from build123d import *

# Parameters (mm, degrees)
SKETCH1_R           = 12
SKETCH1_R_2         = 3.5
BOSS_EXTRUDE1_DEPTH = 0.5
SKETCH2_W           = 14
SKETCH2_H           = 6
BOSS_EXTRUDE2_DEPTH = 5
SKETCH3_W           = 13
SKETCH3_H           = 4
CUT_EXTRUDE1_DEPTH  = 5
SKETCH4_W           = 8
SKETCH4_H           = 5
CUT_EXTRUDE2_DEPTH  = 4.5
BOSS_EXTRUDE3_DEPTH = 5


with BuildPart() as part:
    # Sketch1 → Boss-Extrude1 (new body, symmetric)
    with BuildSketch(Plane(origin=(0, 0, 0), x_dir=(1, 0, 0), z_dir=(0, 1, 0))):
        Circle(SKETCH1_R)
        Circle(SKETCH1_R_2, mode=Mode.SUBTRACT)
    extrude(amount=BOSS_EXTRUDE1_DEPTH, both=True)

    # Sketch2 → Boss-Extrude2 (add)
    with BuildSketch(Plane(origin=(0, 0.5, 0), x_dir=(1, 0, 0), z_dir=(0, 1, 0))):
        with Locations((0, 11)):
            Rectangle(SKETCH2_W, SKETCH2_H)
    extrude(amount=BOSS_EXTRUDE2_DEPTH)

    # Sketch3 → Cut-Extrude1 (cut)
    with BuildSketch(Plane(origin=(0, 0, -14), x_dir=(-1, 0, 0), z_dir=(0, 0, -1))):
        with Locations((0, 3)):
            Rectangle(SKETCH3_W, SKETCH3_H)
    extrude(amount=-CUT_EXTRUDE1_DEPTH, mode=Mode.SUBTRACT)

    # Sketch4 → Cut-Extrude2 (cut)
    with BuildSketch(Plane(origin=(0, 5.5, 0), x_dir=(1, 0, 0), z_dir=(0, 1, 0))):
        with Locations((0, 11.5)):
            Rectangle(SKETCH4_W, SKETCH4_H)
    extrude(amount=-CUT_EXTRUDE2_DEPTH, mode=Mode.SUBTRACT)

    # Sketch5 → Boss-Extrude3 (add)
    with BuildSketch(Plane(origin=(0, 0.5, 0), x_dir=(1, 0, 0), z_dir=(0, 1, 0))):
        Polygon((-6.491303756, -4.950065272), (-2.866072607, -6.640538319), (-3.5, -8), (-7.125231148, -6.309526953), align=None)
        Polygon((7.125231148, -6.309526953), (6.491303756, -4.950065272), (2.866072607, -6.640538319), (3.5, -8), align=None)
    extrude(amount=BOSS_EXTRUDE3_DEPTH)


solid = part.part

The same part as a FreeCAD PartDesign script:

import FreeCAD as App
import Part
import Sketcher
Q = App.Units.Quantity


def add_polygon(sketch, points):
    """Adds a closed chain of lines whose ends are joined by coincident constraints."""
    first, n = sketch.GeometryCount, len(points)
    for a, b in zip(points, points[1:] + points[:1]):
        sketch.addGeometry(Part.LineSegment(App.Vector(*a, 0), App.Vector(*b, 0)), False)
    for i in range(n):
        sketch.addConstraint(Sketcher.Constraint("Coincident", first + i, 2, first + (i + 1) % n, 1))

doc = App.newDocument("Part")
params = doc.addObject("Spreadsheet::Sheet", "Params")
for row, (alias, value) in enumerate([
    ("sketch1_diameter", "24 mm"),
    ("sketch1_diameter2", "7 mm"),
    ("pad1_length", "1 mm"),
    ("sketch2_width", "14 mm"),
    ("sketch2_height", "6 mm"),
    ("pad2_length", "5 mm"),
    ("sketch3_width", "13 mm"),
    ("sketch3_height", "4 mm"),
    ("pocket1_length", "5 mm"),
    ("sketch4_width", "8 mm"),
    ("sketch4_height", "5 mm"),
    ("pocket2_length", "4.5 mm"),
    ("sketch5_length", "4 mm"),
    ("sketch5_length2", "1.5 mm"),
    ("pad3_length", "5 mm"),
], start=1):
    params.set(f"A{row}", alias)
    params.set(f"B{row}", "=" + value)
    params.setAlias(f"B{row}", alias)

body = doc.addObject("PartDesign::Body", "Body")

sketch1 = doc.addObject("Sketcher::SketchObject", "Sketch")
body.addObject(sketch1)
sketch1.AttachmentSupport = (doc.XZ_Plane, [""])
sketch1.MapMode = "FlatFace"
sketch1.addGeometry([
    Part.Circle(App.Vector(0, 0, 0), App.Vector(0, 0, 1), 12),
    Part.Circle(App.Vector(0, 0, 0), App.Vector(0, 0, 1), 3.5),
], False)
sketch1.addConstraint([
    Sketcher.Constraint("Coincident", 0, 3, -1, 1),
    Sketcher.Constraint("Coincident", 1, 3, -1, 1),
    Sketcher.Constraint("Diameter", 0, 24.0),
    Sketcher.Constraint("Diameter", 1, 7.0),
])
sketch1.setExpression("Constraints[2]", "Params.sketch1_diameter")
sketch1.setExpression("Constraints[3]", "Params.sketch1_diameter2")
pad1 = doc.addObject("PartDesign::Pad", "Pad")
body.addObject(pad1)
pad1.Profile = sketch1
pad1.setExpression("Length", "Params.pad1_length")
pad1.Midplane = True

sketch2 = doc.addObject("Sketcher::SketchObject", "Sketch001")
body.addObject(sketch2)
sketch2.AttachmentSupport = (doc.XZ_Plane, [""])
sketch2.MapMode = "FlatFace"
sketch2.AttachmentOffset = App.Placement(App.Vector(0, 0, -0.5), App.Rotation())
add_polygon(sketch2, [(-7, -14), (-7, -8), (7, -8), (7, -14)])
sketch2.addConstraint([
    Sketcher.Constraint("Vertical", 0),
    Sketcher.Constraint("Horizontal", 1),
    Sketcher.Constraint("Vertical", 2),
    Sketcher.Constraint("Horizontal", 3),
    Sketcher.Constraint("DistanceX", 1, 1, 1, 2, 14.0),
    Sketcher.Constraint("DistanceY", 0, 1, 0, 2, 6.0),
    Sketcher.Constraint("DistanceX", 0, 2, -1, 1, 7.0),
    Sketcher.Constraint("DistanceY", 0, 2, -1, 1, 8.0),
])
sketch2.setExpression("Constraints[8]", "Params.sketch2_width")
sketch2.setExpression("Constraints[9]", "Params.sketch2_height")
pad2 = doc.addObject("PartDesign::Pad", "Pad001")
body.addObject(pad2)
pad2.Profile = sketch2
pad2.setExpression("Length", "Params.pad2_length")
pad2.Reversed = True

sketch3 = doc.addObject("Sketcher::SketchObject", "Sketch002")
body.addObject(sketch3)
sketch3.AttachmentSupport = (doc.XY_Plane, [""])
sketch3.MapMode = "FlatFace"
sketch3.AttachmentOffset = App.Placement(App.Vector(0, 0, -14), App.Rotation())
add_polygon(sketch3, [(6.5, 5), (6.5, 1), (-6.5, 1), (-6.5, 5)])
sketch3.addConstraint([
    Sketcher.Constraint("Vertical", 0),
    Sketcher.Constraint("Horizontal", 1),
    Sketcher.Constraint("Vertical", 2),
    Sketcher.Constraint("Horizontal", 3),
    Sketcher.Constraint("DistanceX", 1, 2, 1, 1, 13.0),
    Sketcher.Constraint("DistanceY", 0, 2, 0, 1, 4.0),
    Sketcher.Constraint("DistanceY", -1, 1, 0, 2, 1.0),
    Sketcher.Constraint("DistanceX", -1, 1, 0, 2, 6.5),
])
sketch3.setExpression("Constraints[8]", "Params.sketch3_width")
sketch3.setExpression("Constraints[9]", "Params.sketch3_height")
pocket1 = doc.addObject("PartDesign::Pocket", "Pocket")
body.addObject(pocket1)
pocket1.Profile = sketch3
pocket1.setExpression("Length", "Params.pocket1_length")
pocket1.Reversed = True

sketch4 = doc.addObject("Sketcher::SketchObject", "Sketch003")
body.addObject(sketch4)
sketch4.AttachmentSupport = (doc.XZ_Plane, [""])
sketch4.MapMode = "FlatFace"
sketch4.AttachmentOffset = App.Placement(App.Vector(0, 0, -5.5), App.Rotation())
add_polygon(sketch4, [(-4, -14), (-4, -9), (4, -9), (4, -14)])
sketch4.addConstraint([
    Sketcher.Constraint("Vertical", 0),
    Sketcher.Constraint("Horizontal", 1),
    Sketcher.Constraint("Vertical", 2),
    Sketcher.Constraint("Horizontal", 3),
    Sketcher.Constraint("DistanceX", 1, 1, 1, 2, 8.0),
    Sketcher.Constraint("DistanceY", 0, 1, 0, 2, 5.0),
    Sketcher.Constraint("DistanceX", 0, 2, -1, 1, 4.0),
    Sketcher.Constraint("DistanceY", 0, 2, -1, 1, 9.0),
])
sketch4.setExpression("Constraints[8]", "Params.sketch4_width")
sketch4.setExpression("Constraints[9]", "Params.sketch4_height")
pocket2 = doc.addObject("PartDesign::Pocket", "Pocket001")
body.addObject(pocket2)
pocket2.Profile = sketch4
pocket2.setExpression("Length", "Params.pocket2_length")
pocket2.Reversed = True

sketch5 = doc.addObject("Sketcher::SketchObject", "Sketch004")
body.addObject(sketch5)
sketch5.AttachmentSupport = (doc.XZ_Plane, [""])
sketch5.MapMode = "FlatFace"
sketch5.AttachmentOffset = App.Placement(App.Vector(0, 0, -0.5), App.Rotation())
add_polygon(sketch5, [(-2.9, 6.6), (-6.5, 5), (-7.1, 6.3), (-3.5, 8)])
add_polygon(sketch5, [(7.1, 6.3), (6.5, 5), (2.9, 6.6), (3.5, 8)])
sketch5.addConstraint([
    Sketcher.Constraint("Symmetric", 0, 2, 4, 2, -2),
    Sketcher.Constraint("Symmetric", 3, 2, 5, 2, -2),
    Sketcher.Constraint("Symmetric", 2, 2, 6, 2, -2),
    Sketcher.Constraint("Symmetric", 1, 2, 7, 2, -2),
    Sketcher.Constraint("Perpendicular", 0, 1),
    Sketcher.Constraint("Perpendicular", 1, 2),
    Sketcher.Constraint("Perpendicular", 2, 3),
    Sketcher.Constraint("Angle", 0, Q("-155 deg")),
    Sketcher.Constraint("Distance", 0, 4.0),
    Sketcher.Constraint("DistanceY", -1, 1, 2, 2, 8.0),
    Sketcher.Constraint("DistanceX", 2, 2, 6, 2, 7.0),
    Sketcher.Constraint("Distance", 1, 1.5),
])
sketch5.setExpression("Constraints[16]", "Params.sketch5_length")
sketch5.setExpression("Constraints[19]", "Params.sketch5_length2")
pad3 = doc.addObject("PartDesign::Pad", "Pad002")
body.addObject(pad3)
pad3.Profile = sketch5
pad3.setExpression("Length", "Params.pad3_length")
pad3.Reversed = True

doc.recompute()
